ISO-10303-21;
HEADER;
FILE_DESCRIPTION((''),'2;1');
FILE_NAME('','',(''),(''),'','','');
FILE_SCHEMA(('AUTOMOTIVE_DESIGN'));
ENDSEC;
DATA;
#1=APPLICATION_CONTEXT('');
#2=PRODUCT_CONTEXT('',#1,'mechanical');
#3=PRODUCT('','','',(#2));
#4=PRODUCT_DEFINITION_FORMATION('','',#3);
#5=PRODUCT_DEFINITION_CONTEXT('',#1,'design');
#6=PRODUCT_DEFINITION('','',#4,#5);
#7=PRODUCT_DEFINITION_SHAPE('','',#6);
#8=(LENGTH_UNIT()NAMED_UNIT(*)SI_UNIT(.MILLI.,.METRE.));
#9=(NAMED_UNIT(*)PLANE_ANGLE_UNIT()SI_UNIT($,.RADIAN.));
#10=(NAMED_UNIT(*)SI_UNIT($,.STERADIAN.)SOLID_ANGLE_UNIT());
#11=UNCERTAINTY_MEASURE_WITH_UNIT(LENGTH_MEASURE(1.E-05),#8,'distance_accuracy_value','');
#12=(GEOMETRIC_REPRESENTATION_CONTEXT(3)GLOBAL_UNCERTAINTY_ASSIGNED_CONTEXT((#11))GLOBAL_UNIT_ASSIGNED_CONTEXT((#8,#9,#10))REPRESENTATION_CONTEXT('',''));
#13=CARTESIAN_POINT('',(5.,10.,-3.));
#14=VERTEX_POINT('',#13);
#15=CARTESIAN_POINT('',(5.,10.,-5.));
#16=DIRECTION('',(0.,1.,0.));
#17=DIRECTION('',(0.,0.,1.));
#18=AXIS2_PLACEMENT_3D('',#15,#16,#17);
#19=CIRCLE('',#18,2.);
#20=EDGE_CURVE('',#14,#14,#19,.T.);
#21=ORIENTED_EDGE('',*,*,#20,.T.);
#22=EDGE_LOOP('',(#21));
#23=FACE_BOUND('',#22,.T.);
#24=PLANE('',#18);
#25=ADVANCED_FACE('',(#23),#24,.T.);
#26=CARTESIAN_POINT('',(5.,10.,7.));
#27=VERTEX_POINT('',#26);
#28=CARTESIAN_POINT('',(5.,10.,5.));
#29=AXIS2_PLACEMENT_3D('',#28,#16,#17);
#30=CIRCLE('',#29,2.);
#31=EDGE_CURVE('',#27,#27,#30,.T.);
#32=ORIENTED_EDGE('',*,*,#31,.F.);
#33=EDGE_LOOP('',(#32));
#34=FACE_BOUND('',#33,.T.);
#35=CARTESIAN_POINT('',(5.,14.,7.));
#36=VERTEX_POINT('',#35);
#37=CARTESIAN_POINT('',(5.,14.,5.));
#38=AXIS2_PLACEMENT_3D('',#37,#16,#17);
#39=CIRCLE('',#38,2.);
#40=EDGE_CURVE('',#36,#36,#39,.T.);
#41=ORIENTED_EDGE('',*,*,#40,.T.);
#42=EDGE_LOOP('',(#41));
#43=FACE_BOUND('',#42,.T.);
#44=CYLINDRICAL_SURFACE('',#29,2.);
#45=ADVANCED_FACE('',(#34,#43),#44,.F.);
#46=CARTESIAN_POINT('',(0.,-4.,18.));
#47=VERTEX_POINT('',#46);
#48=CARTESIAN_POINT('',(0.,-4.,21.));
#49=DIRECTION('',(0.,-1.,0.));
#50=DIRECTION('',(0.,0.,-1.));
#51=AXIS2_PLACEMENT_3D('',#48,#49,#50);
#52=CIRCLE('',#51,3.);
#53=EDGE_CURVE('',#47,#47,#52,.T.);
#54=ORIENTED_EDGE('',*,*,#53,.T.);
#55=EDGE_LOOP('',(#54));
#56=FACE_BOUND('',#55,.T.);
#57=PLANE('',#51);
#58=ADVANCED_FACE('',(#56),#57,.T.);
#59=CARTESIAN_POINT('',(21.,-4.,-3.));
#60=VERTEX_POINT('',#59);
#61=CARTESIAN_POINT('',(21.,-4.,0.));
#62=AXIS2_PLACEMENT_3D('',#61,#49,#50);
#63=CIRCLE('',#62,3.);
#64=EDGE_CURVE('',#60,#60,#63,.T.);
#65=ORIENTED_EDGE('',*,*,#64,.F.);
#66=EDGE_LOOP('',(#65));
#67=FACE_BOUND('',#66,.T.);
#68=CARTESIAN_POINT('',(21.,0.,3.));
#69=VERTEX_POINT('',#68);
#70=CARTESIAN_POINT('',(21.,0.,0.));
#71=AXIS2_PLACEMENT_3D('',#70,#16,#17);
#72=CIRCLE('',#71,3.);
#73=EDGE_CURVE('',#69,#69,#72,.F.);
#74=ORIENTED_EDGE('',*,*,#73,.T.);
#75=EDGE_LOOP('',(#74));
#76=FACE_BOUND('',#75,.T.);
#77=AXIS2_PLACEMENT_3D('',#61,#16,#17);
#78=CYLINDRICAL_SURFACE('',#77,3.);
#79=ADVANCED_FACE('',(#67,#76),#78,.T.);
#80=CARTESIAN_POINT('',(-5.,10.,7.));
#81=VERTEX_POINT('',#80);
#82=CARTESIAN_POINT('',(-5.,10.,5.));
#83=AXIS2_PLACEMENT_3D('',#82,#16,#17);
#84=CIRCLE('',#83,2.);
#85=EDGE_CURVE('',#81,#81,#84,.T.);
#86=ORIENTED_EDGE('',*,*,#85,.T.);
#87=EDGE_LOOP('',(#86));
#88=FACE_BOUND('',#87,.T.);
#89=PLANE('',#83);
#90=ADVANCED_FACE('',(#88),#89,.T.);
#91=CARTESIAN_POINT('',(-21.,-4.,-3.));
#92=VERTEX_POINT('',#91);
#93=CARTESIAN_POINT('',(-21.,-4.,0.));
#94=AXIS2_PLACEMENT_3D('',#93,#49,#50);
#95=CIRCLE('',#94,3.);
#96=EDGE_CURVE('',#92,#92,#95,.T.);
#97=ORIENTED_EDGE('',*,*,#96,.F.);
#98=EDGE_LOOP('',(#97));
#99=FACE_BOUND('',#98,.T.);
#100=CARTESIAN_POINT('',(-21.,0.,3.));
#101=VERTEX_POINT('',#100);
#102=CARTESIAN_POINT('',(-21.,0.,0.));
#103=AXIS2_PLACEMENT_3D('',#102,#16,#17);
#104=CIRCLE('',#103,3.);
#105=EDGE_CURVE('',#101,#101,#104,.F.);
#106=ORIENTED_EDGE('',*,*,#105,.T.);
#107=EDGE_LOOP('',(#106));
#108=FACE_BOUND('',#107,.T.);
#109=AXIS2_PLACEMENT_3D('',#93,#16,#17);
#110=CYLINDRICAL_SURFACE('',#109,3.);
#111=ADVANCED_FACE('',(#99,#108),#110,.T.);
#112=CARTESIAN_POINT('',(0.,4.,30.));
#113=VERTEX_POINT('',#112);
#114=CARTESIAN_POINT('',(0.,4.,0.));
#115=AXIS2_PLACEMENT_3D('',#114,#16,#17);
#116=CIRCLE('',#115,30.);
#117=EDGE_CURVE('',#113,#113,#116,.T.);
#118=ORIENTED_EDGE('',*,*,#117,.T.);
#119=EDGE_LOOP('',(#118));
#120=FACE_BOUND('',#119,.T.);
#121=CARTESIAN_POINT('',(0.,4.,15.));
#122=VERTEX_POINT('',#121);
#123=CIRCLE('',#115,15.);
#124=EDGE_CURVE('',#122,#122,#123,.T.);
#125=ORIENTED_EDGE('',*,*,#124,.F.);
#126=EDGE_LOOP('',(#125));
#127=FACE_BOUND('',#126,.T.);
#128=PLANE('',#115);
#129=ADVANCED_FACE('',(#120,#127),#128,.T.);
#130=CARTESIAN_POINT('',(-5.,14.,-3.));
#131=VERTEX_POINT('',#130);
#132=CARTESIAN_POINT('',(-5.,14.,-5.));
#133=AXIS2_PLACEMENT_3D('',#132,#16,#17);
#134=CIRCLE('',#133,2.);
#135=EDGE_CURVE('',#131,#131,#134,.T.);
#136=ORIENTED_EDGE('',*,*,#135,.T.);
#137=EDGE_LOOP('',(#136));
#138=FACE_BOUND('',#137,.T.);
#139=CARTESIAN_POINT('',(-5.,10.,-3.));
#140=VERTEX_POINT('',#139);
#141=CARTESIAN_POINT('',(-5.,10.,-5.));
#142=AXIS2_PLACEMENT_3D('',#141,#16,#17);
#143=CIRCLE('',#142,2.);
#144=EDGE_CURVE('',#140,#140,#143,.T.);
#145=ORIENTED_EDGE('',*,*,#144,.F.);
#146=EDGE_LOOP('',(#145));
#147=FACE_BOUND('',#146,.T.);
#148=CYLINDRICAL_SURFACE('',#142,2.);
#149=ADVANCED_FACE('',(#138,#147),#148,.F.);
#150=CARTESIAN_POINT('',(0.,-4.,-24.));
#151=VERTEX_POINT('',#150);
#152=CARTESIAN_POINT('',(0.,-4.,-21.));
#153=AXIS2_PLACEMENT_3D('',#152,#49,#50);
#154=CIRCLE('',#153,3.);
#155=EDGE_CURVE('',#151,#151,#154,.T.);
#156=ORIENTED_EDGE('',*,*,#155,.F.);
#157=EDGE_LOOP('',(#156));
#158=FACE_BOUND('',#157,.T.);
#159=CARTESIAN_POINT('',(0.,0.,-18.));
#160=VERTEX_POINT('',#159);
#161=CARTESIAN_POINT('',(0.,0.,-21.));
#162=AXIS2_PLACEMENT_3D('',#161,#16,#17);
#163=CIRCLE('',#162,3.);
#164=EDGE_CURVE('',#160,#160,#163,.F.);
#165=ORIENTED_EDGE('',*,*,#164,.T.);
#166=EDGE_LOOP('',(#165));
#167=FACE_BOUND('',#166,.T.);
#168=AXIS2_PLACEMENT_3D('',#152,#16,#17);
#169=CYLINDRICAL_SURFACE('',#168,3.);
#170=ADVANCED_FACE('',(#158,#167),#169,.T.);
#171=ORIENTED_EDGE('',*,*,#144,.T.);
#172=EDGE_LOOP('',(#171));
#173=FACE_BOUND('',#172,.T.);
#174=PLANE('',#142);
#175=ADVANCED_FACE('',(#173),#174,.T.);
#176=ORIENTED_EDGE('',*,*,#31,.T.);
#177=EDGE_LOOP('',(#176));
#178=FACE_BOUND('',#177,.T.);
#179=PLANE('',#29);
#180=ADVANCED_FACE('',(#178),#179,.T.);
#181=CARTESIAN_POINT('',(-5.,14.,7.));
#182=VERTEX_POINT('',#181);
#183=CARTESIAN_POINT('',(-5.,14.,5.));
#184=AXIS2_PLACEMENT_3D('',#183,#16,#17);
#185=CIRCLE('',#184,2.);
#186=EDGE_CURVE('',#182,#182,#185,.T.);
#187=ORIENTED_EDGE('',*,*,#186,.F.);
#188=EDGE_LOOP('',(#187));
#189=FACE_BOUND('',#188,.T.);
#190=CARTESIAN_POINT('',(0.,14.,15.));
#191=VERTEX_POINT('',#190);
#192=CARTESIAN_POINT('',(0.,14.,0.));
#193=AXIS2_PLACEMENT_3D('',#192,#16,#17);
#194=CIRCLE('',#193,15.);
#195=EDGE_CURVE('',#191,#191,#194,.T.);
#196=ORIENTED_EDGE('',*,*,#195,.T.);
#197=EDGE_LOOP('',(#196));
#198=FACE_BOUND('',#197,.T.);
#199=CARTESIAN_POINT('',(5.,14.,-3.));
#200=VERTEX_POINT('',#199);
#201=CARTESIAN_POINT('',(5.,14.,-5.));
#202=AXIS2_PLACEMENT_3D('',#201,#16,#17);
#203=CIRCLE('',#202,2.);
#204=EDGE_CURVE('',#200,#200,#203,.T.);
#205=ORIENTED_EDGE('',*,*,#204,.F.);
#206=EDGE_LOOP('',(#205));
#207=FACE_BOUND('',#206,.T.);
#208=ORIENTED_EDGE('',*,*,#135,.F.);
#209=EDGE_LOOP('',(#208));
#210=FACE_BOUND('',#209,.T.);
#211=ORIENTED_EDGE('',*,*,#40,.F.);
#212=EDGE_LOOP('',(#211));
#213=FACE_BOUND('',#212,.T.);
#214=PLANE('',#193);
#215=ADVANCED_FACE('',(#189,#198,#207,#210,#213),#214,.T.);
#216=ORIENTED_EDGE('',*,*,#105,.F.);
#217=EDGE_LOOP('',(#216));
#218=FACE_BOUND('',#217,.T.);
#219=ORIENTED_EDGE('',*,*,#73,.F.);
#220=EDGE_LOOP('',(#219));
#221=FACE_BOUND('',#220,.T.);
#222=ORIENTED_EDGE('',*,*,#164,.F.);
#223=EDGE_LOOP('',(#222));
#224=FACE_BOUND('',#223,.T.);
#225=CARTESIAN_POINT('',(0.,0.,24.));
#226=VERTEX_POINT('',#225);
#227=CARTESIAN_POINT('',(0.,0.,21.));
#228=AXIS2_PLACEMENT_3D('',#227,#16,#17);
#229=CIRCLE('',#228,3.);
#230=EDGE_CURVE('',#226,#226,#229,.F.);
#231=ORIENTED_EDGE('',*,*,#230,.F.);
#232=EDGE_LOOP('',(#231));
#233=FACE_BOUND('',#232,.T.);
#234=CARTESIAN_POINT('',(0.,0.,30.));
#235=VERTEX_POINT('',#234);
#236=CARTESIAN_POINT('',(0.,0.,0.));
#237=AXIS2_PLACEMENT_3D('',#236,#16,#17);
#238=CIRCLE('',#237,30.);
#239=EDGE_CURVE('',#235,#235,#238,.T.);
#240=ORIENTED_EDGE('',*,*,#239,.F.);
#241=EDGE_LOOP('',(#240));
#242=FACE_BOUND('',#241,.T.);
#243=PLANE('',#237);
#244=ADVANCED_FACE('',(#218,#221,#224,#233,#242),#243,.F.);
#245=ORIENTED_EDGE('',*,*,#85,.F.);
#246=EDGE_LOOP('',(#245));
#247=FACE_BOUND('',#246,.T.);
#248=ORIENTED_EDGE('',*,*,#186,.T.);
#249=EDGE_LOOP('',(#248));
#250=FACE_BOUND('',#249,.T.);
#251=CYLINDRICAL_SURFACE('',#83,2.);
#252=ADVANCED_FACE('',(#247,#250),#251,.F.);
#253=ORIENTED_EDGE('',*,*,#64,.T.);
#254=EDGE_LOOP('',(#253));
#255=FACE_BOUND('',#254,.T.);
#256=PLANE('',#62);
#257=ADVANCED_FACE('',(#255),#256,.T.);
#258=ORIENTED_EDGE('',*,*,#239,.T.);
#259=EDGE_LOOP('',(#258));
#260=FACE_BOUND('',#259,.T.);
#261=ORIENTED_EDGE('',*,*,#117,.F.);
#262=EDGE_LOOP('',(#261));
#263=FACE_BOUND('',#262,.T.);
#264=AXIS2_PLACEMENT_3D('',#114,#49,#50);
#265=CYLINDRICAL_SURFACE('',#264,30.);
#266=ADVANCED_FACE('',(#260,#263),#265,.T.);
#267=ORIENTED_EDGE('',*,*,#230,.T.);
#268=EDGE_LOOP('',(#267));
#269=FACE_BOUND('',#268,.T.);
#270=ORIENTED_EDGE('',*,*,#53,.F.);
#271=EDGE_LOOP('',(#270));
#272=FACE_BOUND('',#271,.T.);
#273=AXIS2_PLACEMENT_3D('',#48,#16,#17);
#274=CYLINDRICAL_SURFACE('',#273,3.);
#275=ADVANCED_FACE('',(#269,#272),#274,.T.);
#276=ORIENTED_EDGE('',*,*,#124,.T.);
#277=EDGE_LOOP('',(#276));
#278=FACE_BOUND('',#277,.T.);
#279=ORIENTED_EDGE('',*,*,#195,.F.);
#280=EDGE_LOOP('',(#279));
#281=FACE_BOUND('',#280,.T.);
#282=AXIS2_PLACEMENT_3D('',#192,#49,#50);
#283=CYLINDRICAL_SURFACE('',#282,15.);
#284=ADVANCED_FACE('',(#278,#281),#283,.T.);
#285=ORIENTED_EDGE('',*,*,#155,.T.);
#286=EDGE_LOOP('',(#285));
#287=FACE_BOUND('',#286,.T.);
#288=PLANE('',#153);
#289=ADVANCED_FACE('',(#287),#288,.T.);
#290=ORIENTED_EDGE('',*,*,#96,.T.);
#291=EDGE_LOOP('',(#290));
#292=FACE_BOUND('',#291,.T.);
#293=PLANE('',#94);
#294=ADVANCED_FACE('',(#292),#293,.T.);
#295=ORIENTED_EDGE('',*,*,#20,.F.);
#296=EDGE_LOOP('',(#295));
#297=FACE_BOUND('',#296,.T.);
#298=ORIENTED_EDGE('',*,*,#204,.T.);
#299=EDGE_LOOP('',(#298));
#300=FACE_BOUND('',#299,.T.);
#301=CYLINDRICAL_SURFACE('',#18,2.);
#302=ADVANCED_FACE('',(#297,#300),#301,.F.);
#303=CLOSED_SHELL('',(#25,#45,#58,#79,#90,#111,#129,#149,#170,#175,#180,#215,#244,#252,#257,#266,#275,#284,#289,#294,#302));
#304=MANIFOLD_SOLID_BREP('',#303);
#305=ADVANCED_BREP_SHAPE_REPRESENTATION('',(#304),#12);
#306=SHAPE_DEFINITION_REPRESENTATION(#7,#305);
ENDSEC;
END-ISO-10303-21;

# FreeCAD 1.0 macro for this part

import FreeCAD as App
import Part
import Sketcher
from FreeCAD import Vector

doc = App.newDocument("Part")
params = doc.addObject("Spreadsheet::Sheet", "Params")
for row, (alias, value) in enumerate([
    ("sketch1_diameter", "60 mm"),
    ("pad1_length", "4 mm"),
    ("sketch2_diameter", "30 mm"),
    ("pad2_length", "10 mm"),
    ("sketch3_diameter", "6 mm"),
    ("pad3_length", "4 mm"),
    ("sketch4_diameter", "4 mm"),
    ("pocket1_length", "4 mm"),
], start=1):
    params.set(f"A{row}", alias)
    params.set(f"B{row}", "=" + value)
    params.setAlias(f"B{row}", alias)

body = doc.addObject("PartDesign::Body", "Body")

# Sketch on XZ plane
sketch1 = body.newObject("Sketcher::SketchObject", "Sketch")
sketch1.AttachmentSupport = (doc.getObject("XZ_Plane"), [""])
sketch1.MapMode = "FlatFace"
sketch1.addGeometry(Part.Circle(Vector(0, 0, 0), Vector(0, 0, 1), 30), False)
sketch1.addConstraint(Sketcher.Constraint("Coincident", 0, 3, -1, 1))
sketch1.addConstraint(Sketcher.Constraint("Diameter", 0, 60.0))
sketch1.setExpression("Constraints[1]", "Params.sketch1_diameter")
pad1 = body.newObject("PartDesign::Pad", "Pad")
pad1.Profile = sketch1
pad1.setExpression("Length", "Params.pad1_length")
pad1.Reversed = True

# Sketch on XZ plane
sketch2 = body.newObject("Sketcher::SketchObject", "Sketch001")
sketch2.AttachmentSupport = (doc.getObject("XZ_Plane"), [""])
sketch2.MapMode = "FlatFace"
sketch2.AttachmentOffset = App.Placement(Vector(0, 0, -4), App.Rotation())
sketch2.addGeometry(Part.Circle(Vector(0, 0, 0), Vector(0, 0, 1), 15), False)
sketch2.addConstraint(Sketcher.Constraint("Coincident", 0, 3, -1, 1))
sketch2.addConstraint(Sketcher.Constraint("Diameter", 0, 30.0))
sketch2.setExpression("Constraints[1]", "Params.sketch2_diameter")
pad2 = body.newObject("PartDesign::Pad", "Pad001")
pad2.Profile = sketch2
pad2.setExpression("Length", "Params.pad2_length")
pad2.Reversed = True

# Sketch on XZ plane
sketch3 = body.newObject("Sketcher::SketchObject", "Sketch002")
sketch3.AttachmentSupport = (doc.getObject("XZ_Plane"), [""])
sketch3.MapMode = "FlatFace"
sketch3.addGeometry(Part.Circle(Vector(-21, 0, 0), Vector(0, 0, 1), 3), False)
sketch3.addGeometry(Part.Circle(Vector(0, 21, 0), Vector(0, 0, 1), 3), False)
sketch3.addGeometry(Part.Circle(Vector(21, 0, 0), Vector(0, 0, 1), 3), False)
sketch3.addGeometry(Part.Circle(Vector(0, -21, 0), Vector(0, 0, 1), 3), False)
sketch3.addConstraint(Sketcher.Constraint("Equal", 0, 1))
sketch3.addConstraint(Sketcher.Constraint("Equal", 1, 2))
sketch3.addConstraint(Sketcher.Constraint("Equal", 2, 3))
sketch3.addConstraint(Sketcher.Constraint("Symmetric", 0, 3, 2, 3, -1, 1))
sketch3.addConstraint(Sketcher.Constraint("Symmetric", 1, 3, 3, 3, -1, 1))
sketch3.addConstraint(Sketcher.Constraint("PointOnObject", 0, 3, -1))
sketch3.addConstraint(Sketcher.Constraint("PointOnObject", 1, 3, -2))
sketch3.addConstraint(Sketcher.Constraint("Diameter", 0, 6.0))
sketch3.addConstraint(Sketcher.Constraint("DistanceX", 0, 3, -1, 1, 21.0))
sketch3.addConstraint(Sketcher.Constraint("DistanceY", -1, 1, 1, 3, 21.0))
sketch3.setExpression("Constraints[7]", "Params.sketch3_diameter")
pad3 = body.newObject("PartDesign::Pad", "Pad002")
pad3.Profile = sketch3
pad3.setExpression("Length", "Params.pad3_length")

# Sketch on XZ plane
sketch4 = body.newObject("Sketcher::SketchObject", "Sketch003")
sketch4.AttachmentSupport = (doc.getObject("XZ_Plane"), [""])
sketch4.MapMode = "FlatFace"
sketch4.AttachmentOffset = App.Placement(Vector(0, 0, -14), App.Rotation())
sketch4.addGeometry(Part.Circle(Vector(-5, -5, 0), Vector(0, 0, 1), 2), False)
sketch4.addGeometry(Part.Circle(Vector(5, -5, 0), Vector(0, 0, 1), 2), False)
sketch4.addGeometry(Part.Circle(Vector(5, 5, 0), Vector(0, 0, 1), 2), False)
sketch4.addGeometry(Part.Circle(Vector(-5, 5, 0), Vector(0, 0, 1), 2), False)
sketch4.addConstraint(Sketcher.Constraint("Equal", 0, 1))
sketch4.addConstraint(Sketcher.Constraint("Equal", 1, 2))
sketch4.addConstraint(Sketcher.Constraint("Equal", 2, 3))
sketch4.addConstraint(Sketcher.Constraint("Symmetric", 0, 3, 2, 3, -1, 1))
sketch4.addConstraint(Sketcher.Constraint("Symmetric", 1, 3, 3, 3, -1, 1))
sketch4.addConstraint(Sketcher.Constraint("Symmetric", 0, 3, 1, 3, -2))
sketch4.addConstraint(Sketcher.Constraint("Diameter", 0, 4.0))
sketch4.addConstraint(Sketcher.Constraint("DistanceX", 0, 3, -1, 1, 5.0))
sketch4.addConstraint(Sketcher.Constraint("DistanceY", 0, 3, -1, 1, 5.0))
sketch4.setExpression("Constraints[6]", "Params.sketch4_diameter")
pocket1 = body.newObject("PartDesign::Pocket", "Pocket")
pocket1.Profile = sketch4
pocket1.setExpression("Length", "Params.pocket1_length")
pocket1.Reversed = True

doc.recompute()
